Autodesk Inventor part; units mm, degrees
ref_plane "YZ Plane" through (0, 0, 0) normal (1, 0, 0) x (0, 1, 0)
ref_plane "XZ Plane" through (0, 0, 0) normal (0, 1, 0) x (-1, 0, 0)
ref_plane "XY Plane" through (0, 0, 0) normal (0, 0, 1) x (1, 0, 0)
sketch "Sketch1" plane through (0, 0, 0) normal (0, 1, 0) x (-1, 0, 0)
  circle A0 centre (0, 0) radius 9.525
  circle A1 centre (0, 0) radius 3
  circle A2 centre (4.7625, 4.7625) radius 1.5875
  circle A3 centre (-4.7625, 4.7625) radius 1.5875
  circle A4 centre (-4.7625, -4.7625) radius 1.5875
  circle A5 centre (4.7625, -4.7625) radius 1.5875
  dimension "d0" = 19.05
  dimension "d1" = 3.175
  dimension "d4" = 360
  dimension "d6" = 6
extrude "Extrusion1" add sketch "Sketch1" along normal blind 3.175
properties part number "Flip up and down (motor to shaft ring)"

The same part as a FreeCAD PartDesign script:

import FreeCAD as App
import Part
import Sketcher
from FreeCAD import Vector
Q = App.Units.Quantity

doc = App.newDocument("Part")
body = doc.addObject("PartDesign::Body", "Body")

sketch1 = body.newObject("Sketcher::SketchObject", "Sketch")
sketch1.AttachmentSupport = (doc.getObject("XZ_Plane"), [""])
sketch1.MapMode = "FlatFace"
sketch1.addGeometry([
    Part.Circle(Vector(0, 0, 0), Vector(0, 0, 1), 9.5),
    Part.Circle(Vector(4.8, -4.8, 0), Vector(0, 0, 1), 1.6),
    Part.Circle(Vector(-4.8, -4.8, 0), Vector(0, 0, 1), 1.6),
    Part.Circle(Vector(4.8, 4.8, 0), Vector(0, 0, 1), 1.6),
    Part.Circle(Vector(0, 0, 0), Vector(0, 0, 1), 3),
    Part.Circle(Vector(-4.8, 4.8, 0), Vector(0, 0, 1), 1.6),
], False)
sketch1.addConstraint([
    Sketcher.Constraint("Coincident", 0, 3, -1, 1),
    Sketcher.Constraint("Coincident", 4, 3, -1, 1),
    Sketcher.Constraint("Equal", 1, 2),
    Sketcher.Constraint("Equal", 2, 3),
    Sketcher.Constraint("Equal", 3, 5),
    Sketcher.Constraint("Symmetric", 2, 3, 3, 3, -1, 1),
    Sketcher.Constraint("Symmetric", 1, 3, 5, 3, -1, 1),
    Sketcher.Constraint("Symmetric", 1, 3, 2, 3, -2),
    Sketcher.Constraint("Diameter", 0, Q("0.75 in")),
    Sketcher.Constraint("Diameter", 1, Q("0.125 in")),
    Sketcher.Constraint("Diameter", 4, 6.0),
    Sketcher.Constraint("DistanceX", -1, 1, 1, 3, Q("0.1875 in")),
    Sketcher.Constraint("DistanceY", 1, 3, -1, 1, Q("0.1875 in")),
])
pad1 = body.newObject("PartDesign::Pad", "Pad")
pad1.Profile = sketch1
pad1.Length = Q("0.125 in")
pad1.Reversed = True

doc.recompute()
